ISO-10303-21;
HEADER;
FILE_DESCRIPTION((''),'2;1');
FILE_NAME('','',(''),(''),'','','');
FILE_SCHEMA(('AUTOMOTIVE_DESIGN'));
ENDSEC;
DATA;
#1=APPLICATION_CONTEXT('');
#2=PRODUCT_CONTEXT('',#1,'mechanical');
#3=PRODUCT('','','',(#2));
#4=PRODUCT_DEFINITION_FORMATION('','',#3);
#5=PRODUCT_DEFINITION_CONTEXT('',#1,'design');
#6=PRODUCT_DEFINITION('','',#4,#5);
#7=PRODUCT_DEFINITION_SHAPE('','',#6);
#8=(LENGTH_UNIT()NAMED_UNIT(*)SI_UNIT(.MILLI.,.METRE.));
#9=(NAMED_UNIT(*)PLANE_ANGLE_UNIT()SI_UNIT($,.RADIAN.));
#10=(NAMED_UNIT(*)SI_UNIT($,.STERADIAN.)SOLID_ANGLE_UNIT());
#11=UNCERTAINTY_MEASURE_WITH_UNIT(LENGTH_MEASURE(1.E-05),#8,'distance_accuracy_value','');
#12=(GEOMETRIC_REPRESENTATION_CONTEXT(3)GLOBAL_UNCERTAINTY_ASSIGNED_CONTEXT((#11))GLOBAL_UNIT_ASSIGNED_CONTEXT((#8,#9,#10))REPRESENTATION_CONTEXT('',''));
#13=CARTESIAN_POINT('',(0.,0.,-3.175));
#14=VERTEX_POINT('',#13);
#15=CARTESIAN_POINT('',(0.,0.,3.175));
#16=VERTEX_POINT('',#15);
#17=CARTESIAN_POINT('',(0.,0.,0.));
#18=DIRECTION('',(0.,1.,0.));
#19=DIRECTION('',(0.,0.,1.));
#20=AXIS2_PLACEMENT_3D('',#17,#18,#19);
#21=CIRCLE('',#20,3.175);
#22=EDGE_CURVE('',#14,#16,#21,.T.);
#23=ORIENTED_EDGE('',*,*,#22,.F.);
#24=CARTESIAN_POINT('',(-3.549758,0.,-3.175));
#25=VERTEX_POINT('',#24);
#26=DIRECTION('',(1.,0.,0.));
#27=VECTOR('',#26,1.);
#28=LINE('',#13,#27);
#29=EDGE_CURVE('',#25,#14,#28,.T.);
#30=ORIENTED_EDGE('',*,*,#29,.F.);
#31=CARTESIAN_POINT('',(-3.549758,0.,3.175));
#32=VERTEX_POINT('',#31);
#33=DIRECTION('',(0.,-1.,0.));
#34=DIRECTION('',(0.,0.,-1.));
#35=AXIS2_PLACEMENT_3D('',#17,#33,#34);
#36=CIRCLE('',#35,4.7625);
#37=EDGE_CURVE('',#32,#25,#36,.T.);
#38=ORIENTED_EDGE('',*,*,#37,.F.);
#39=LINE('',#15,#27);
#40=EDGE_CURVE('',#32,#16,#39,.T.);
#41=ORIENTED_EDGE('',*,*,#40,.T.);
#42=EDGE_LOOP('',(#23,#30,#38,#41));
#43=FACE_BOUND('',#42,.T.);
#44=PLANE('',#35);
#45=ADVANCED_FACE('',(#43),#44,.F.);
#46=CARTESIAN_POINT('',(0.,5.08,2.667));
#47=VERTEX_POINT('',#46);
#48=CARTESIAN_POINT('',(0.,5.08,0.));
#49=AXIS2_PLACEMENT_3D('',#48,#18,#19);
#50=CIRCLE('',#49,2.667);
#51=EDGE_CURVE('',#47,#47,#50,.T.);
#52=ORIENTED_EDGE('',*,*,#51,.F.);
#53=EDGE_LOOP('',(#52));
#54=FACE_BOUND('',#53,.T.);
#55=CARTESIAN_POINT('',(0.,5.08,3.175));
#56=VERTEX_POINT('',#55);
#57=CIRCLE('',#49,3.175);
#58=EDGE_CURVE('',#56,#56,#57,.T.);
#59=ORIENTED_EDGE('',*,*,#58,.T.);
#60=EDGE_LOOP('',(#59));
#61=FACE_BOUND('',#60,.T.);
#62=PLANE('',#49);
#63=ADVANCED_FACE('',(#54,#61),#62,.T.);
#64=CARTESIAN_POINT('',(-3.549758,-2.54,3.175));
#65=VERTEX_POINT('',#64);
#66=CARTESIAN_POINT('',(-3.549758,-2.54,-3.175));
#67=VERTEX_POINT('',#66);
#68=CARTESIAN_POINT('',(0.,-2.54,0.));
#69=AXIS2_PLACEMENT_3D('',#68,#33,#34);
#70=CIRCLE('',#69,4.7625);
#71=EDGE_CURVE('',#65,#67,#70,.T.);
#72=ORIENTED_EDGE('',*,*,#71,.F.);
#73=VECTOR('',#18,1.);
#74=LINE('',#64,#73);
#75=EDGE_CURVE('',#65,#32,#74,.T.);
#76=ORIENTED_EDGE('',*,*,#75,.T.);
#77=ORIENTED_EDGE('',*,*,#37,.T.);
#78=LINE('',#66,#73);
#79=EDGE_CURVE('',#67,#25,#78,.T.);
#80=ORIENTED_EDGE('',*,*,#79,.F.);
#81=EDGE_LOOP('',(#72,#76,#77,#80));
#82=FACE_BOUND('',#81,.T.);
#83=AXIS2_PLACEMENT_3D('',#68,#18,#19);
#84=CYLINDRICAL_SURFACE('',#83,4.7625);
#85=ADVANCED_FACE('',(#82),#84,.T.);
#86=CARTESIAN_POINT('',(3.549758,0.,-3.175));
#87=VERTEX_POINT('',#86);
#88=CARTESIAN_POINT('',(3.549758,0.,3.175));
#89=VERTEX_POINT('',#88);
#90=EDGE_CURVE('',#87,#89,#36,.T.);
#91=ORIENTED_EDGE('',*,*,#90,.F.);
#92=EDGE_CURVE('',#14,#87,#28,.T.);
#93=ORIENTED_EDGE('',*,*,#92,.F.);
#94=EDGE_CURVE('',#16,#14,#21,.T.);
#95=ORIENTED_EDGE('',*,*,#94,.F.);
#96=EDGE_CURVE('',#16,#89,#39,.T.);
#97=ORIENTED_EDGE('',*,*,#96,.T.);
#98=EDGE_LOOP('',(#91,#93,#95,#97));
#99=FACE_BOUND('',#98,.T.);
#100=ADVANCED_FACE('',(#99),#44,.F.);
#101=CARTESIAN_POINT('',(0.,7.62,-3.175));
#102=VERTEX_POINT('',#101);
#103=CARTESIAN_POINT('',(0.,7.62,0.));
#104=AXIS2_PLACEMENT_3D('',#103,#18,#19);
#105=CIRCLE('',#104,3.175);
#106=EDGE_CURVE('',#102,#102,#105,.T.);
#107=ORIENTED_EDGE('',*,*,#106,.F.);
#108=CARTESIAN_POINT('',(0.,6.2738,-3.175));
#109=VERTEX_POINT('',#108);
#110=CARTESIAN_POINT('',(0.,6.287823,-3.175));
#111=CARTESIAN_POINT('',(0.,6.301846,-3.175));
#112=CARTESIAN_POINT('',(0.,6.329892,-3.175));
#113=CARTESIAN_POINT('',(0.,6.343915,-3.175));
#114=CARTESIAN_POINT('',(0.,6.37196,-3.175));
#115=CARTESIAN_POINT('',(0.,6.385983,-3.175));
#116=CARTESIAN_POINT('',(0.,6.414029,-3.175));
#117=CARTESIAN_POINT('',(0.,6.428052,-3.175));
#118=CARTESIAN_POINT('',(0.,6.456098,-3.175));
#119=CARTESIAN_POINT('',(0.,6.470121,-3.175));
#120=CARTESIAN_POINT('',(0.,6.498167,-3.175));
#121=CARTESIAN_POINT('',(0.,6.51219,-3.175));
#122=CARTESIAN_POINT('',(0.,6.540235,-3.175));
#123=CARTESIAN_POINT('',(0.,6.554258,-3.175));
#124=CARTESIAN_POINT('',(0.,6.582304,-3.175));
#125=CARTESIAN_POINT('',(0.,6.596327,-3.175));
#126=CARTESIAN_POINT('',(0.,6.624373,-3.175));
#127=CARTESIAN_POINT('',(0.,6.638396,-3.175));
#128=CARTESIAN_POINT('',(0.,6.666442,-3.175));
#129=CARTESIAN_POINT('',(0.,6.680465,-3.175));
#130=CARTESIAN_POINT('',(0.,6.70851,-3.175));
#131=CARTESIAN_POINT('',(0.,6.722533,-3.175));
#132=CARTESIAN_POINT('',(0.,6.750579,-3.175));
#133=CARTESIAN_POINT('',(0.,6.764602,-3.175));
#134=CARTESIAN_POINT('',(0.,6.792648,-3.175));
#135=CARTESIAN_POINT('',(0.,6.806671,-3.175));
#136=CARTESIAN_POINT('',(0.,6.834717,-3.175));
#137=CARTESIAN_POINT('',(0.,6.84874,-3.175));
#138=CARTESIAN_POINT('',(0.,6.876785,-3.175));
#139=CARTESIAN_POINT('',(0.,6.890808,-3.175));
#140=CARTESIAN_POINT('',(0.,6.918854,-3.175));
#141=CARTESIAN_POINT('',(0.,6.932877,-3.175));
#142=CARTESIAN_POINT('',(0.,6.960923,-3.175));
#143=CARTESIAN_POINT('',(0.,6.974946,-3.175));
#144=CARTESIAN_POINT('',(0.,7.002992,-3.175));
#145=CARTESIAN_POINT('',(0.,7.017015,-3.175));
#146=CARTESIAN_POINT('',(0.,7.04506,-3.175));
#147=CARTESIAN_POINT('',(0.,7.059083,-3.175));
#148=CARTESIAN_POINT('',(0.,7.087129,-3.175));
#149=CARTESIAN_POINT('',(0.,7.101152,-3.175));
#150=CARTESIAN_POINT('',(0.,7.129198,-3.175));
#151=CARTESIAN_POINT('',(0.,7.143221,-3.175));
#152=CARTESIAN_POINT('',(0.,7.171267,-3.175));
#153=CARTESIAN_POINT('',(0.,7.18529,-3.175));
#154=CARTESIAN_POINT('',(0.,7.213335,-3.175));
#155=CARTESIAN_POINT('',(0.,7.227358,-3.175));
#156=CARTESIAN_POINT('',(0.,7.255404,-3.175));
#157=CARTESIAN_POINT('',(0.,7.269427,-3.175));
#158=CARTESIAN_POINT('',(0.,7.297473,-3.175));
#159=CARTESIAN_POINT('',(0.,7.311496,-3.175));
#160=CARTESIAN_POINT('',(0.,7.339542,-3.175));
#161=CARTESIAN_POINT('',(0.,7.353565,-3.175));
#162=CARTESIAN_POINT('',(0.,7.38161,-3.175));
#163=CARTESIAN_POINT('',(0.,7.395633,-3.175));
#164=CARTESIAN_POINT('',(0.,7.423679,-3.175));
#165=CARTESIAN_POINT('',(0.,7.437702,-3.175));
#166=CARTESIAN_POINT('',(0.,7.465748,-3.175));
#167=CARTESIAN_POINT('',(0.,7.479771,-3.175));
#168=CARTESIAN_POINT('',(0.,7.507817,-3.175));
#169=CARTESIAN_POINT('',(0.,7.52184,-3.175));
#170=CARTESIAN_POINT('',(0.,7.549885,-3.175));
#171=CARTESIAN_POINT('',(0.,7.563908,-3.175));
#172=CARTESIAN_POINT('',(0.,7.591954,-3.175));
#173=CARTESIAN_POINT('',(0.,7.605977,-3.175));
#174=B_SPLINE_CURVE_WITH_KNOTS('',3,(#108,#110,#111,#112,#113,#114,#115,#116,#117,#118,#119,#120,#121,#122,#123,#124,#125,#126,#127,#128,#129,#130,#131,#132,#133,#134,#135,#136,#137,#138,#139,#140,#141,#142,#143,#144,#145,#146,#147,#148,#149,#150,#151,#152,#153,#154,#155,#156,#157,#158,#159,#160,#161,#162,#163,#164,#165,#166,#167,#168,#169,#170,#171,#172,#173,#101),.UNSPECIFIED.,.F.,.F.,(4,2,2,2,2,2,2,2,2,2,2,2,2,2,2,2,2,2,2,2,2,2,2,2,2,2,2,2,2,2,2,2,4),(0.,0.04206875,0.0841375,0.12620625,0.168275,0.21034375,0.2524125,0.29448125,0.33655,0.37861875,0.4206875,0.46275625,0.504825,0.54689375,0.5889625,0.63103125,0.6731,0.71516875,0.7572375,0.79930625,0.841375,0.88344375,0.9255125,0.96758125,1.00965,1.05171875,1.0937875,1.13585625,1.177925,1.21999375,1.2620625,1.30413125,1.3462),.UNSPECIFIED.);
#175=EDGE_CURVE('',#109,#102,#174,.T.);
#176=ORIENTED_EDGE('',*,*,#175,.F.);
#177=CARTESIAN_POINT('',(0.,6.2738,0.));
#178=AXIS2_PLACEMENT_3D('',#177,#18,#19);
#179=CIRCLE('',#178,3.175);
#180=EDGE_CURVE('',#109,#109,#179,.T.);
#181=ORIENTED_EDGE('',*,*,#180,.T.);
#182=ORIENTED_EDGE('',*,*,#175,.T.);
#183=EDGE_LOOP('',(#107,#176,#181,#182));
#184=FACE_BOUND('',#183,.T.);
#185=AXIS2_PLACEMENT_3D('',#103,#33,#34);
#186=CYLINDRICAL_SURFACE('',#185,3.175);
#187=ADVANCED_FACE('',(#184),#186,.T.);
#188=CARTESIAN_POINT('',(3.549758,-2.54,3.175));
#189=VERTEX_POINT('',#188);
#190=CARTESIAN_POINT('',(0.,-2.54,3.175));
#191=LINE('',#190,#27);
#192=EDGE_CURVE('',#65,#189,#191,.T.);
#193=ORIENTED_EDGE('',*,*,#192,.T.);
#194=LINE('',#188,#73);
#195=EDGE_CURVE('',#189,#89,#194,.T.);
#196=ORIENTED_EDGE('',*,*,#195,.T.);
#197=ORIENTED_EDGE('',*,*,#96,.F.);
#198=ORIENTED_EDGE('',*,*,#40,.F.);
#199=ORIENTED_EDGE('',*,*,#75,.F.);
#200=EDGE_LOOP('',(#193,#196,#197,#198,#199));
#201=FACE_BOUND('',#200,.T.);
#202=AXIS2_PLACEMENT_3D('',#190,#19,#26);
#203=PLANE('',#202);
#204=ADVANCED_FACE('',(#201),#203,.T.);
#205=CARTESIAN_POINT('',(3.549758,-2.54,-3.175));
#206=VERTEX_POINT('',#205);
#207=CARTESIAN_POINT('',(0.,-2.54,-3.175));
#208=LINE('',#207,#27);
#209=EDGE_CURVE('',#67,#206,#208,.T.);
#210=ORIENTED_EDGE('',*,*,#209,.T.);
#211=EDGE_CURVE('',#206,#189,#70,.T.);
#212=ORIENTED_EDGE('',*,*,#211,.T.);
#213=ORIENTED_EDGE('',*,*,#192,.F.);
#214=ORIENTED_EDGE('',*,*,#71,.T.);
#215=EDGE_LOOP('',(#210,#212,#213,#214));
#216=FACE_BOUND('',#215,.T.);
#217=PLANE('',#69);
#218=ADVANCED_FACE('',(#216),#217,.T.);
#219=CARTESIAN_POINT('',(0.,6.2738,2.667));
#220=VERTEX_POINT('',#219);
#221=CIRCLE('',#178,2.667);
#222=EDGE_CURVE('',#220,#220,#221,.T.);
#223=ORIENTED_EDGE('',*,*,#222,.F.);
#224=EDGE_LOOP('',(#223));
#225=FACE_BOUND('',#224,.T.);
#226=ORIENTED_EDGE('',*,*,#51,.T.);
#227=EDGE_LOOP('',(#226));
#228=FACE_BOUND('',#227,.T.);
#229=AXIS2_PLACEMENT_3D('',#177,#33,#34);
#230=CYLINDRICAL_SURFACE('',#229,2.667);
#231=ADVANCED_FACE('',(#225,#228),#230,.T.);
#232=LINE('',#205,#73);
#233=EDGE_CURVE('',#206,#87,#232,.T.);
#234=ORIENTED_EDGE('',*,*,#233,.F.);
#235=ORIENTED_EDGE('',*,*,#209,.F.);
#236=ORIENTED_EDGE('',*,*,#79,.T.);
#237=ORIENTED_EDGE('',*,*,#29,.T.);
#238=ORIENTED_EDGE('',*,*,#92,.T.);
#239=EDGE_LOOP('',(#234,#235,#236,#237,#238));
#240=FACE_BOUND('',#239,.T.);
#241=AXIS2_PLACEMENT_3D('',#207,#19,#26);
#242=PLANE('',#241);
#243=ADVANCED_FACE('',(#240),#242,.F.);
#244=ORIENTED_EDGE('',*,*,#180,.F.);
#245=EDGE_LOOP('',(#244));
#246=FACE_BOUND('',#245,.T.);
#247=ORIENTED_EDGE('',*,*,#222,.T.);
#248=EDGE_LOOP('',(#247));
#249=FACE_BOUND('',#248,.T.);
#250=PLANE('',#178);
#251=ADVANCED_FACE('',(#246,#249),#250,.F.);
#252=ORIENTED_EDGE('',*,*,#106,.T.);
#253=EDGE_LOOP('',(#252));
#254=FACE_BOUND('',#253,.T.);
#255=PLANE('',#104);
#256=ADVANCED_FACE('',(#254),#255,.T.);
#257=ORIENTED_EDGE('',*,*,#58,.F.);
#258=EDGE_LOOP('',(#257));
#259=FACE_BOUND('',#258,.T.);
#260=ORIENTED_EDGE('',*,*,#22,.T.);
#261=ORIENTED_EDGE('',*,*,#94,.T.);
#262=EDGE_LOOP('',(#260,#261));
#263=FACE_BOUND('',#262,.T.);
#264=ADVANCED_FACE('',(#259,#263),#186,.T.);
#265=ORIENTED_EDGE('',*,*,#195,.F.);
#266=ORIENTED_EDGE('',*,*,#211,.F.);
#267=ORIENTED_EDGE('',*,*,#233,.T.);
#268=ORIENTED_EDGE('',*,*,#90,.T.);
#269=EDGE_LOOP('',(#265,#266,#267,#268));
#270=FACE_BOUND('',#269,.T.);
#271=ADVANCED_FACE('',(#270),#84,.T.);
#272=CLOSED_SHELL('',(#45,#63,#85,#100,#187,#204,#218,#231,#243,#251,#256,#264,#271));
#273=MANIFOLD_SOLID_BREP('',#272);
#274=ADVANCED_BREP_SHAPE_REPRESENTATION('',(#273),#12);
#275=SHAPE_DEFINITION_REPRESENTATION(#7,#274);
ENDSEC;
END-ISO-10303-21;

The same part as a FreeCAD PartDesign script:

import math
import FreeCAD as App
import Part
import Sketcher
from FreeCAD import Vector
Q = App.Units.Quantity


def add_polygon(sketch, points):
    """Adds a closed chain of lines whose ends are joined by coincident constraints."""
    first, n = sketch.GeometryCount, len(points)
    for a, b in zip(points, points[1:] + points[:1]):
        sketch.addGeometry(Part.LineSegment(App.Vector(*a, 0), App.Vector(*b, 0)), False)
    for i in range(n):
        sketch.addConstraint(Sketcher.Constraint("Coincident", first + i, 2, first + (i + 1) % n, 1))

doc = App.newDocument("Part")
body = doc.addObject("PartDesign::Body", "Body")

sketch1 = body.newObject("Sketcher::SketchObject", "Sketch")
sketch1.AttachmentSupport = (doc.getObject("XZ_Plane"), [""])
sketch1.MapMode = "FlatFace"
sketch1.addGeometry(Part.Circle(Vector(0, 0, 0), Vector(0, 0, 1), 3.175), False)
sketch1.addConstraint([
    Sketcher.Constraint("Coincident", 0, 3, -1, 1),
    Sketcher.Constraint("Diameter", 0, Q("0.25 in")),
])
pad1 = body.newObject("PartDesign::Pad", "Pad")
pad1.Profile = sketch1
pad1.Length = Q("0.3 in")
pad1.Reversed = True

sketch2 = body.newObject("Sketcher::SketchObject", "Sketch001")
sketch2.AttachmentSupport = (doc.getObject("XZ_Plane"), [""])
sketch2.MapMode = "FlatFace"
sketch2.addGeometry([
    Part.LineSegment(Vector(3.549758, 3.175, 0), Vector(-3.549758, 3.175, 0)),
    Part.ArcOfCircle(Part.Circle(Vector(0, 0, 0), Vector(0, 0, 1), 4.7625), math.radians(138.189685), math.radians(221.810315)),
    Part.LineSegment(Vector(-3.549758, -3.175, 0), Vector(3.549758, -3.175, 0)),
    Part.ArcOfCircle(Part.Circle(Vector(0, 0, 0), Vector(0, 0, 1), 4.7625), math.radians(-41.810315), math.radians(41.810315)),
], False)
sketch2.addConstraint([
    Sketcher.Constraint("Coincident", 0, 2, 1, 1),
    Sketcher.Constraint("Coincident", 1, 2, 2, 1),
    Sketcher.Constraint("Coincident", 2, 2, 3, 1),
    Sketcher.Constraint("Coincident", 3, 2, 0, 1),
    Sketcher.Constraint("Horizontal", 0),
    Sketcher.Constraint("Horizontal", 2),
    Sketcher.Constraint("Coincident", 1, 3, -1, 1),
    Sketcher.Constraint("Coincident", 3, 3, -1, 1),
    Sketcher.Constraint("Equal", 1, 3),
    Sketcher.Constraint("Vertical", 0, 2, 1, 2),
    Sketcher.Constraint("Radius", 1, Q("0.1875 in")),
    Sketcher.Constraint("DistanceY", 1, 2, 0, 2, Q("0.25 in")),
])
pad2 = body.newObject("PartDesign::Pad", "Pad001")
pad2.Profile = sketch2
pad2.Length = Q("0.1 in")

sketch3 = body.newObject("Sketcher::SketchObject", "Sketch002")
sketch3.AttachmentSupport = (doc.getObject("XZ_Plane"), [""])
sketch3.MapMode = "FlatFace"
sketch3.AttachmentOffset = App.Placement(Vector(0, 0, -0.2 * 25.4), App.Rotation())
add_polygon(sketch3, [(-7.293, -5.706), (-7.293, 5.706), (7.294, 5.706), (7.294, -5.706)])
sketch3.addGeometry(Part.Circle(Vector(0, 0, 0), Vector(0, 0, 1), 2.667), False)
sketch3.addConstraint([
    Sketcher.Constraint("Vertical", 0),
    Sketcher.Constraint("Horizontal", 1),
    Sketcher.Constraint("Vertical", 2),
    Sketcher.Constraint("Horizontal", 3),
    Sketcher.Constraint("Coincident", 4, 3, -1, 1),
    Sketcher.Constraint("Diameter", 4, Q("0.21 in")),
    Sketcher.Constraint("DistanceX", 1, 1, 1, 2, Q("14.587 mm")),
    Sketcher.Constraint("DistanceY", 0, 1, 0, 2, Q("11.412 mm")),
    Sketcher.Constraint("DistanceX", 0, 2, -1, 1, Q("7.293 mm")),
    Sketcher.Constraint("DistanceY", -1, 1, 0, 2, Q("5.706 mm")),
])
pocket1 = body.newObject("PartDesign::Pocket", "Pocket")
pocket1.Profile = sketch3
pocket1.Length = Q("0.047 in")

doc.recompute()
